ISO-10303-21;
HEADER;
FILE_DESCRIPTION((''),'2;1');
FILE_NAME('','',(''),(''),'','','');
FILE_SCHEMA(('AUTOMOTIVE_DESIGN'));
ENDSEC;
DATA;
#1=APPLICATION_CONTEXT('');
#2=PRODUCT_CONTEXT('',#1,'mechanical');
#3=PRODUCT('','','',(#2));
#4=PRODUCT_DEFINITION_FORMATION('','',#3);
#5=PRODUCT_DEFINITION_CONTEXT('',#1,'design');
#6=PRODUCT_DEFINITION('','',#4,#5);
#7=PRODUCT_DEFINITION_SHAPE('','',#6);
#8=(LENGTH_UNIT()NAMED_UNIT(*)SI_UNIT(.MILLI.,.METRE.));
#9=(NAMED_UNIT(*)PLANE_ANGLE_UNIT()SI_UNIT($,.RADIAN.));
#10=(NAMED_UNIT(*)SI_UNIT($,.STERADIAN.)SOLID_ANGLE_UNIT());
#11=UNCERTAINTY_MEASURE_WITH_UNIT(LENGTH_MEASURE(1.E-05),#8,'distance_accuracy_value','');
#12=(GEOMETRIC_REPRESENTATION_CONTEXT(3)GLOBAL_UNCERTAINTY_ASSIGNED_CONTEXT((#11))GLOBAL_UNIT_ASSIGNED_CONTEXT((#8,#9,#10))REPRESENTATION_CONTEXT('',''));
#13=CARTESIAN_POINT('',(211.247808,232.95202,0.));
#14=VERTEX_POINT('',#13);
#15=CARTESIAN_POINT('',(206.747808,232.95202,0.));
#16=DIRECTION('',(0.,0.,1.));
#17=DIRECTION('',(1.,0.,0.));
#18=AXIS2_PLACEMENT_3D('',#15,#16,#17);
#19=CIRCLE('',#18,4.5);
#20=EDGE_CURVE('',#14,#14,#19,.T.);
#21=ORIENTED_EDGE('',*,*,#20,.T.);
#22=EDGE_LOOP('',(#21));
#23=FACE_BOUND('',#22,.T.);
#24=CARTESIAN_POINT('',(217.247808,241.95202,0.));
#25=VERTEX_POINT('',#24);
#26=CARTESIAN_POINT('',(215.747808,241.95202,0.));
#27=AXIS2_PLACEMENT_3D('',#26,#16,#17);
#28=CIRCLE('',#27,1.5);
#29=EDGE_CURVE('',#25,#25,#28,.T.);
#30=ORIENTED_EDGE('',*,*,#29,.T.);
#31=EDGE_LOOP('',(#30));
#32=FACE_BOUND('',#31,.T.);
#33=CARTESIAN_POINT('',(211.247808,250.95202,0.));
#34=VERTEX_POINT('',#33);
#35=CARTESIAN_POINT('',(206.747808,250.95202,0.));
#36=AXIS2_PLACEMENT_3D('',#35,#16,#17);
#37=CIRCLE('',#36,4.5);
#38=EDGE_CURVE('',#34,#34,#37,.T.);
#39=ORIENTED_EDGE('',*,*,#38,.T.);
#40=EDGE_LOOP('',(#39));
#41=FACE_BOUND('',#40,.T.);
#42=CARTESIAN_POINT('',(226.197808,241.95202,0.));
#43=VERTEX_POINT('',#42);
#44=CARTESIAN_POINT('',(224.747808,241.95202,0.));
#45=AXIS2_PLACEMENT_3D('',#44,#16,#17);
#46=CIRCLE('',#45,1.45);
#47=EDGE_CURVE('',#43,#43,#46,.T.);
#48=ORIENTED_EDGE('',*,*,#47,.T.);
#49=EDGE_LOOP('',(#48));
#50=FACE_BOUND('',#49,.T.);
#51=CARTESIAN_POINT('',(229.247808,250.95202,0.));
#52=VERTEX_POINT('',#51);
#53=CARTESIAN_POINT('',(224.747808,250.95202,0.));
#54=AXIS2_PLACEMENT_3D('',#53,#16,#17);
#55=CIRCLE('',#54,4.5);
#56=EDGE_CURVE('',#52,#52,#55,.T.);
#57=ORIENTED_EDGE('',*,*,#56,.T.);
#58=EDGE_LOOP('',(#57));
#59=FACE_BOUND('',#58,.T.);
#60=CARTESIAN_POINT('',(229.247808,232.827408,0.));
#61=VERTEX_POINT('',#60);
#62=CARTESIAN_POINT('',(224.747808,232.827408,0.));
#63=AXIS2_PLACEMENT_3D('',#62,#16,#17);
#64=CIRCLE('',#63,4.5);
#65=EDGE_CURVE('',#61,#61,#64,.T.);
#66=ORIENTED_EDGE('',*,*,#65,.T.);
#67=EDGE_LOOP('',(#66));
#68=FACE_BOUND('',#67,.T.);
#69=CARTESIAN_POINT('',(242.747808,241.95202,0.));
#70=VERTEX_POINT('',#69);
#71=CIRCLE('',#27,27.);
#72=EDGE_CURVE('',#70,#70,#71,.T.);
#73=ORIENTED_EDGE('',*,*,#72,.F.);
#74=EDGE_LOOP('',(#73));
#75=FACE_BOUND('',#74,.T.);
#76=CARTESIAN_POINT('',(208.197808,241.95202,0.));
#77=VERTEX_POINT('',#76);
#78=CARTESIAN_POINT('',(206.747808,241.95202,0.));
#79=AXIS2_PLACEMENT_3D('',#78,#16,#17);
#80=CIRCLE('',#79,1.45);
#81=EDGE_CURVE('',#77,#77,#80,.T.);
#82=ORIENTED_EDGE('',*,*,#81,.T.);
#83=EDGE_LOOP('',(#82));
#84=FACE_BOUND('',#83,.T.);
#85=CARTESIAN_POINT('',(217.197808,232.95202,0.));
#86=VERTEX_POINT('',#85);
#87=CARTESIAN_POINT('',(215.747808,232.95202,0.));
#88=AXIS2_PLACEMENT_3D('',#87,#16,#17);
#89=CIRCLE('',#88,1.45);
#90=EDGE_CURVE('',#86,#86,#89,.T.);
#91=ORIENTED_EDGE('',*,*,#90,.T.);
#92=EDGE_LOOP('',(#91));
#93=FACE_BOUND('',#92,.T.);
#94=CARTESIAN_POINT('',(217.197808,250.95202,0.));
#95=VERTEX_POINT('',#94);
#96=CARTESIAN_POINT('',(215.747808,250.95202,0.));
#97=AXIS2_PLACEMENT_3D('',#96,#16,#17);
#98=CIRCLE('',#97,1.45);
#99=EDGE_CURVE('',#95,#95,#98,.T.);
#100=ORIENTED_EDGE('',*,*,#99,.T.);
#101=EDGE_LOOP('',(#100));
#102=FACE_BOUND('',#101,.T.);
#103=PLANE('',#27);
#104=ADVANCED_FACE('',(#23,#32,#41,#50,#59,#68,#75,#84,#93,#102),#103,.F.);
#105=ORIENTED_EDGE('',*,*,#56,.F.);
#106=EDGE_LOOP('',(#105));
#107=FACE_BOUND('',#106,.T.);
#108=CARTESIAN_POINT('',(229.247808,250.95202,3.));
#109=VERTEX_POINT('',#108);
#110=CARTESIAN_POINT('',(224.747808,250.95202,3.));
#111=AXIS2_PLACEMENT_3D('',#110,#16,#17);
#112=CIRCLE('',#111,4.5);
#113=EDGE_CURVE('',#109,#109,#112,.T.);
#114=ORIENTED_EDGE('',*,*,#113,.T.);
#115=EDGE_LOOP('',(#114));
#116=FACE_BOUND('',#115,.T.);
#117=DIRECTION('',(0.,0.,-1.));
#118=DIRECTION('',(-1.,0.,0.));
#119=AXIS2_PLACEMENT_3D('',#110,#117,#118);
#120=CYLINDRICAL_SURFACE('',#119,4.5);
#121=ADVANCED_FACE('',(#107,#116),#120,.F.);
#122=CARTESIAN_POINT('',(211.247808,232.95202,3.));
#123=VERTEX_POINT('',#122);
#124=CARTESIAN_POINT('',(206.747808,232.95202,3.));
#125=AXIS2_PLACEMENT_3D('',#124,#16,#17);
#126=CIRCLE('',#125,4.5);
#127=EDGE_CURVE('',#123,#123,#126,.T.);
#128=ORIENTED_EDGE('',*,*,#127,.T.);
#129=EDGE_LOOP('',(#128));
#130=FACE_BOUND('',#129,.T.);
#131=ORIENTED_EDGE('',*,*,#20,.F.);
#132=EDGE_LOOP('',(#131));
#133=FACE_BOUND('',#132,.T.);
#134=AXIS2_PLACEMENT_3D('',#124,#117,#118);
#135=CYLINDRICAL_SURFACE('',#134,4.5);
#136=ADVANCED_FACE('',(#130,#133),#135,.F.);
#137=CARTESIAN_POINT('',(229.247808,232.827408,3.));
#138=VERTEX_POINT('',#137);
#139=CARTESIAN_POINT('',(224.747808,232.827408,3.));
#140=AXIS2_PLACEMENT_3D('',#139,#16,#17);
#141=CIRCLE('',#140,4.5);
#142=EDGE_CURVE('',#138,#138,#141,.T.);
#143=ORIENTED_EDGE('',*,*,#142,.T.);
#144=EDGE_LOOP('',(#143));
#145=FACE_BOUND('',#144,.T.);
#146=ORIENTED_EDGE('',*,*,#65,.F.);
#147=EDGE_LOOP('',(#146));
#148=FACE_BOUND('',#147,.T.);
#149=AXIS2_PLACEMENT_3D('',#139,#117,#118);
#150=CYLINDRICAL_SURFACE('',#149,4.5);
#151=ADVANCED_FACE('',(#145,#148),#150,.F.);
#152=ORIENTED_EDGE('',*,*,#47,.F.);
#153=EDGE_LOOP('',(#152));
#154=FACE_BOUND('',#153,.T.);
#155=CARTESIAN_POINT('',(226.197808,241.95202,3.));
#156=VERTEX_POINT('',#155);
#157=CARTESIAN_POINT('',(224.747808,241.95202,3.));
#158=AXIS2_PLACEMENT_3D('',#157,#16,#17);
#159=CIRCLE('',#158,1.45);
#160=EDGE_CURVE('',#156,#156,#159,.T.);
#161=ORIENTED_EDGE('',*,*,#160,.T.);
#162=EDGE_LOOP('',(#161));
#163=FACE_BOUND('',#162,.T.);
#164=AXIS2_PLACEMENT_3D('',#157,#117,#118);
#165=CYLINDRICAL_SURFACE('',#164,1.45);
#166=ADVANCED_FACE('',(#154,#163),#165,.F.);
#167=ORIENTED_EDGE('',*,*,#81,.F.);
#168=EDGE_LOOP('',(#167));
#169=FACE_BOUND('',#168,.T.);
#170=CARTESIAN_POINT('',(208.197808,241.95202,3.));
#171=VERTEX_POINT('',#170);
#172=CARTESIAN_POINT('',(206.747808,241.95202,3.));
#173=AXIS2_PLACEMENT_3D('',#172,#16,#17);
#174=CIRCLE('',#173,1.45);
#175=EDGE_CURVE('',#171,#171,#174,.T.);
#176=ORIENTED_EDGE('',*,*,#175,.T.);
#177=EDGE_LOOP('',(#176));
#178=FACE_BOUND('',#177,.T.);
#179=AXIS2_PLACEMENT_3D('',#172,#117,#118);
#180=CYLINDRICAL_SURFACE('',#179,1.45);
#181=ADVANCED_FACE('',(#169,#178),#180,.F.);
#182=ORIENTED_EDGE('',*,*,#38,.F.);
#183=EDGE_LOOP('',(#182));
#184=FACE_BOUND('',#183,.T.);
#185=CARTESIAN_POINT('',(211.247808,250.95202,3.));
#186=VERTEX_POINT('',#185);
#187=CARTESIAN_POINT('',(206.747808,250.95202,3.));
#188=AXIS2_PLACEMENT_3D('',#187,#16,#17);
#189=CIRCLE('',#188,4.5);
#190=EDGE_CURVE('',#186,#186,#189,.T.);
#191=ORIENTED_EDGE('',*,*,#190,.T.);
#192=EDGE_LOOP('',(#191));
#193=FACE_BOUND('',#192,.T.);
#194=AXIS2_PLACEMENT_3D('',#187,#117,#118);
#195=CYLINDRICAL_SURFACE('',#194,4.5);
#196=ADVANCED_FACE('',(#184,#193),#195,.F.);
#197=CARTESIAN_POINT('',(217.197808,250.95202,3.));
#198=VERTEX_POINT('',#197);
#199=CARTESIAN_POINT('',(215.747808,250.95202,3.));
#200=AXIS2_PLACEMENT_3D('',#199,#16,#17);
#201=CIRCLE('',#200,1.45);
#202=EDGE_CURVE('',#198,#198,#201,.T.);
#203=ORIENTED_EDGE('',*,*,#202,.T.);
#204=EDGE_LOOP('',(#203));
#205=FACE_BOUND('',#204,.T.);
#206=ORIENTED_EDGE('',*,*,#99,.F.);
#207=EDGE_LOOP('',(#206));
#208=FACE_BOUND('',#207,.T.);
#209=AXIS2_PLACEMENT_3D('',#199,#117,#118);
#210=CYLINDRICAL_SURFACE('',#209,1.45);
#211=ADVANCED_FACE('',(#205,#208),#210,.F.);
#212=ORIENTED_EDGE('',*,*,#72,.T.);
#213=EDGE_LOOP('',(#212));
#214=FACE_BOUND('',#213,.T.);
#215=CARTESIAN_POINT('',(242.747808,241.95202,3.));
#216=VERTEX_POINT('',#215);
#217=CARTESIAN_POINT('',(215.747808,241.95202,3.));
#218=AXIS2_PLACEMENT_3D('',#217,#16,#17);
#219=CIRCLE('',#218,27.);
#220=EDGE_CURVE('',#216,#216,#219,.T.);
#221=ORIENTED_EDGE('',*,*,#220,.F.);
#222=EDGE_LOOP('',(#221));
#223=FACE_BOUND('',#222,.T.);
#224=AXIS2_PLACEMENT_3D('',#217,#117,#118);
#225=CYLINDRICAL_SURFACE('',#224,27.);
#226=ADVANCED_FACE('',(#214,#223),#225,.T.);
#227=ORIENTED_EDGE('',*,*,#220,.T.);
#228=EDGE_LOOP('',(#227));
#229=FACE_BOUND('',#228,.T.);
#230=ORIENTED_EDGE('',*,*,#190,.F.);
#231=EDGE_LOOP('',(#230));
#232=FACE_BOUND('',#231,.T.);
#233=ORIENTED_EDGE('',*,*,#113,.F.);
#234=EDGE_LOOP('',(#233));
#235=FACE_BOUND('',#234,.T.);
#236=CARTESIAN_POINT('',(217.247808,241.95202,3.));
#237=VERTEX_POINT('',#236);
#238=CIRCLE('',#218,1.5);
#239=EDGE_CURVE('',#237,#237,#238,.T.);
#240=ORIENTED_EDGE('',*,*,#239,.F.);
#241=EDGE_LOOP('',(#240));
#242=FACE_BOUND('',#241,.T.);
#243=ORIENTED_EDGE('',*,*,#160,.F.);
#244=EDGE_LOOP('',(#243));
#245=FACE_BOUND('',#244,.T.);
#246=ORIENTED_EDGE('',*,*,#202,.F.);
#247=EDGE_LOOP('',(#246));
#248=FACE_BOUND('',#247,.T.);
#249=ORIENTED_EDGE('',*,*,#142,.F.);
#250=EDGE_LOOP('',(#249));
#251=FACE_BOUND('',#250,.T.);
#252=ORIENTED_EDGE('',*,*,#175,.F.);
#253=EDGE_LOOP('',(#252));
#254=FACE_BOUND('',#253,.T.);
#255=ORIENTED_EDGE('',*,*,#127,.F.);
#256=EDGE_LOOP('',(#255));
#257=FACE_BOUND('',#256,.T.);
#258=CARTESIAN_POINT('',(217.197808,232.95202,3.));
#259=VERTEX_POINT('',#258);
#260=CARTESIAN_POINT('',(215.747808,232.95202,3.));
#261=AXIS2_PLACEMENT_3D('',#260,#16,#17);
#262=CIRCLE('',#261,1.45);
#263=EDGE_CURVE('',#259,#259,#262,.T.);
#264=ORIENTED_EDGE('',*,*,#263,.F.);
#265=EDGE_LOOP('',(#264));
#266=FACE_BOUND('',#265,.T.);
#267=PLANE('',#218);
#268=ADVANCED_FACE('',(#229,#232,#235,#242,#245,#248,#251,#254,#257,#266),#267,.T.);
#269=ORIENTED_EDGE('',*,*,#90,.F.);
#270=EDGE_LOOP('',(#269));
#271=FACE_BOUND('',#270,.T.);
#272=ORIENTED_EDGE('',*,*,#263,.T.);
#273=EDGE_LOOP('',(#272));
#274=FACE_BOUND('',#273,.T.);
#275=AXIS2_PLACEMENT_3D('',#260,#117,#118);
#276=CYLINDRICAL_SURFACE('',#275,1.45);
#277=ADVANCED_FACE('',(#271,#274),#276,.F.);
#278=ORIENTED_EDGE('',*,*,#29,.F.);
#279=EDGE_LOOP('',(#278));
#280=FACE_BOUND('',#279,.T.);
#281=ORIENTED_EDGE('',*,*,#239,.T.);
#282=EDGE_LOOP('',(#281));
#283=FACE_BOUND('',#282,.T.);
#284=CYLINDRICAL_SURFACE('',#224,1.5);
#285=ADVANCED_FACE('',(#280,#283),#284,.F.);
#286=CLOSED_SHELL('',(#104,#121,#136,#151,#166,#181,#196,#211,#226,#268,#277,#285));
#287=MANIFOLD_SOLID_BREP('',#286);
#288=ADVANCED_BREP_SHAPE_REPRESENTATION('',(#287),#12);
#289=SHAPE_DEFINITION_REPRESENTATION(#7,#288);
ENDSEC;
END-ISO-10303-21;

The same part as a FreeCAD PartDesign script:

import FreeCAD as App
import Part
import Sketcher

doc = App.newDocument("Part")
body = doc.addObject("PartDesign::Body", "Body")

# Sketch on XY plane
sketch1 = body.newObject("Sketcher::SketchObject", "Sketch")
sketch1.AttachmentSupport = (doc.getObject("XY_Plane"), [""])
sketch1.MapMode = "FlatFace"
sketch1.addGeometry([
    Part.Circle(App.Vector(215.7, 242, 0), App.Vector(0, 0, 1), 27),  # 0
    Part.Circle(App.Vector(206.7, 233, 0), App.Vector(0, 0, 1), 4.5),  # 1
    Part.Circle(App.Vector(215.7, 233, 0), App.Vector(0, 0, 1), 1.4),  # 2
    Part.Circle(App.Vector(224.7, 232.8, 0), App.Vector(0, 0, 1), 4.5),  # 3
    Part.Circle(App.Vector(206.7, 242, 0), App.Vector(0, 0, 1), 1.4),  # 4
    Part.Circle(App.Vector(206.7, 251, 0), App.Vector(0, 0, 1), 4.5),  # 5
    Part.Circle(App.Vector(215.7, 242, 0), App.Vector(0, 0, 1), 1.5),  # 6
    Part.Circle(App.Vector(224.7, 242, 0), App.Vector(0, 0, 1), 1.4),  # 7
    Part.Circle(App.Vector(215.7, 251, 0), App.Vector(0, 0, 1), 1.4),  # 8
    Part.Circle(App.Vector(224.7, 251, 0), App.Vector(0, 0, 1), 4.5),  # 9
], False)
sketch1.addConstraint([
    Sketcher.Constraint("Coincident", 6, 3, 0, 3),
    Sketcher.Constraint("Equal", 1, 3),
    Sketcher.Constraint("Equal", 2, 4),
    Sketcher.Constraint("Equal", 3, 5),
    Sketcher.Constraint("Equal", 4, 7),
    Sketcher.Constraint("Equal", 7, 8),
    Sketcher.Constraint("Equal", 5, 9),
    Sketcher.Constraint("Horizontal", 1, 3, 2, 3),
    Sketcher.Constraint("Horizontal", 0, 3, 4, 3),
    Sketcher.Constraint("Horizontal", 6, 3, 7, 3),
    Sketcher.Constraint("Horizontal", 5, 3, 8, 3),
    Sketcher.Constraint("Horizontal", 8, 3, 9, 3),
    Sketcher.Constraint("Vertical", 0, 3, 2, 3),
    Sketcher.Constraint("Vertical", 1, 3, 4, 3),
    Sketcher.Constraint("Vertical", 4, 3, 5, 3),
    Sketcher.Constraint("Vertical", 3, 3, 7, 3),
    Sketcher.Constraint("Vertical", 6, 3, 8, 3),
    Sketcher.Constraint("Vertical", 7, 3, 9, 3),
    Sketcher.Constraint("Diameter", 0, 54.0),
    Sketcher.Constraint("Diameter", 1, 9.0),
    Sketcher.Constraint("Diameter", 6, 3.0),
    Sketcher.Constraint("Diameter", 2, 2.9),
    Sketcher.Constraint("DistanceX", 1, 3, 0, 3, 9.0),
    Sketcher.Constraint("DistanceY", 1, 3, 0, 3, 9.0),
    Sketcher.Constraint("DistanceX", 2, 3, 3, 3, 9.0),
    Sketcher.Constraint("DistanceY", 4, 3, 5, 3, 9.0),
    Sketcher.Constraint("DistanceY", -1, 1, 0, 3, 241.95202),
    Sketcher.Constraint("DistanceY", -1, 1, 3, 3, 232.827408),
    Sketcher.Constraint("DistanceX", -1, 1, 0, 3, 215.747808),
])
pad1 = body.newObject("PartDesign::Pad", "Pad")
pad1.Profile = sketch1
pad1.Length = 3

doc.recompute()
